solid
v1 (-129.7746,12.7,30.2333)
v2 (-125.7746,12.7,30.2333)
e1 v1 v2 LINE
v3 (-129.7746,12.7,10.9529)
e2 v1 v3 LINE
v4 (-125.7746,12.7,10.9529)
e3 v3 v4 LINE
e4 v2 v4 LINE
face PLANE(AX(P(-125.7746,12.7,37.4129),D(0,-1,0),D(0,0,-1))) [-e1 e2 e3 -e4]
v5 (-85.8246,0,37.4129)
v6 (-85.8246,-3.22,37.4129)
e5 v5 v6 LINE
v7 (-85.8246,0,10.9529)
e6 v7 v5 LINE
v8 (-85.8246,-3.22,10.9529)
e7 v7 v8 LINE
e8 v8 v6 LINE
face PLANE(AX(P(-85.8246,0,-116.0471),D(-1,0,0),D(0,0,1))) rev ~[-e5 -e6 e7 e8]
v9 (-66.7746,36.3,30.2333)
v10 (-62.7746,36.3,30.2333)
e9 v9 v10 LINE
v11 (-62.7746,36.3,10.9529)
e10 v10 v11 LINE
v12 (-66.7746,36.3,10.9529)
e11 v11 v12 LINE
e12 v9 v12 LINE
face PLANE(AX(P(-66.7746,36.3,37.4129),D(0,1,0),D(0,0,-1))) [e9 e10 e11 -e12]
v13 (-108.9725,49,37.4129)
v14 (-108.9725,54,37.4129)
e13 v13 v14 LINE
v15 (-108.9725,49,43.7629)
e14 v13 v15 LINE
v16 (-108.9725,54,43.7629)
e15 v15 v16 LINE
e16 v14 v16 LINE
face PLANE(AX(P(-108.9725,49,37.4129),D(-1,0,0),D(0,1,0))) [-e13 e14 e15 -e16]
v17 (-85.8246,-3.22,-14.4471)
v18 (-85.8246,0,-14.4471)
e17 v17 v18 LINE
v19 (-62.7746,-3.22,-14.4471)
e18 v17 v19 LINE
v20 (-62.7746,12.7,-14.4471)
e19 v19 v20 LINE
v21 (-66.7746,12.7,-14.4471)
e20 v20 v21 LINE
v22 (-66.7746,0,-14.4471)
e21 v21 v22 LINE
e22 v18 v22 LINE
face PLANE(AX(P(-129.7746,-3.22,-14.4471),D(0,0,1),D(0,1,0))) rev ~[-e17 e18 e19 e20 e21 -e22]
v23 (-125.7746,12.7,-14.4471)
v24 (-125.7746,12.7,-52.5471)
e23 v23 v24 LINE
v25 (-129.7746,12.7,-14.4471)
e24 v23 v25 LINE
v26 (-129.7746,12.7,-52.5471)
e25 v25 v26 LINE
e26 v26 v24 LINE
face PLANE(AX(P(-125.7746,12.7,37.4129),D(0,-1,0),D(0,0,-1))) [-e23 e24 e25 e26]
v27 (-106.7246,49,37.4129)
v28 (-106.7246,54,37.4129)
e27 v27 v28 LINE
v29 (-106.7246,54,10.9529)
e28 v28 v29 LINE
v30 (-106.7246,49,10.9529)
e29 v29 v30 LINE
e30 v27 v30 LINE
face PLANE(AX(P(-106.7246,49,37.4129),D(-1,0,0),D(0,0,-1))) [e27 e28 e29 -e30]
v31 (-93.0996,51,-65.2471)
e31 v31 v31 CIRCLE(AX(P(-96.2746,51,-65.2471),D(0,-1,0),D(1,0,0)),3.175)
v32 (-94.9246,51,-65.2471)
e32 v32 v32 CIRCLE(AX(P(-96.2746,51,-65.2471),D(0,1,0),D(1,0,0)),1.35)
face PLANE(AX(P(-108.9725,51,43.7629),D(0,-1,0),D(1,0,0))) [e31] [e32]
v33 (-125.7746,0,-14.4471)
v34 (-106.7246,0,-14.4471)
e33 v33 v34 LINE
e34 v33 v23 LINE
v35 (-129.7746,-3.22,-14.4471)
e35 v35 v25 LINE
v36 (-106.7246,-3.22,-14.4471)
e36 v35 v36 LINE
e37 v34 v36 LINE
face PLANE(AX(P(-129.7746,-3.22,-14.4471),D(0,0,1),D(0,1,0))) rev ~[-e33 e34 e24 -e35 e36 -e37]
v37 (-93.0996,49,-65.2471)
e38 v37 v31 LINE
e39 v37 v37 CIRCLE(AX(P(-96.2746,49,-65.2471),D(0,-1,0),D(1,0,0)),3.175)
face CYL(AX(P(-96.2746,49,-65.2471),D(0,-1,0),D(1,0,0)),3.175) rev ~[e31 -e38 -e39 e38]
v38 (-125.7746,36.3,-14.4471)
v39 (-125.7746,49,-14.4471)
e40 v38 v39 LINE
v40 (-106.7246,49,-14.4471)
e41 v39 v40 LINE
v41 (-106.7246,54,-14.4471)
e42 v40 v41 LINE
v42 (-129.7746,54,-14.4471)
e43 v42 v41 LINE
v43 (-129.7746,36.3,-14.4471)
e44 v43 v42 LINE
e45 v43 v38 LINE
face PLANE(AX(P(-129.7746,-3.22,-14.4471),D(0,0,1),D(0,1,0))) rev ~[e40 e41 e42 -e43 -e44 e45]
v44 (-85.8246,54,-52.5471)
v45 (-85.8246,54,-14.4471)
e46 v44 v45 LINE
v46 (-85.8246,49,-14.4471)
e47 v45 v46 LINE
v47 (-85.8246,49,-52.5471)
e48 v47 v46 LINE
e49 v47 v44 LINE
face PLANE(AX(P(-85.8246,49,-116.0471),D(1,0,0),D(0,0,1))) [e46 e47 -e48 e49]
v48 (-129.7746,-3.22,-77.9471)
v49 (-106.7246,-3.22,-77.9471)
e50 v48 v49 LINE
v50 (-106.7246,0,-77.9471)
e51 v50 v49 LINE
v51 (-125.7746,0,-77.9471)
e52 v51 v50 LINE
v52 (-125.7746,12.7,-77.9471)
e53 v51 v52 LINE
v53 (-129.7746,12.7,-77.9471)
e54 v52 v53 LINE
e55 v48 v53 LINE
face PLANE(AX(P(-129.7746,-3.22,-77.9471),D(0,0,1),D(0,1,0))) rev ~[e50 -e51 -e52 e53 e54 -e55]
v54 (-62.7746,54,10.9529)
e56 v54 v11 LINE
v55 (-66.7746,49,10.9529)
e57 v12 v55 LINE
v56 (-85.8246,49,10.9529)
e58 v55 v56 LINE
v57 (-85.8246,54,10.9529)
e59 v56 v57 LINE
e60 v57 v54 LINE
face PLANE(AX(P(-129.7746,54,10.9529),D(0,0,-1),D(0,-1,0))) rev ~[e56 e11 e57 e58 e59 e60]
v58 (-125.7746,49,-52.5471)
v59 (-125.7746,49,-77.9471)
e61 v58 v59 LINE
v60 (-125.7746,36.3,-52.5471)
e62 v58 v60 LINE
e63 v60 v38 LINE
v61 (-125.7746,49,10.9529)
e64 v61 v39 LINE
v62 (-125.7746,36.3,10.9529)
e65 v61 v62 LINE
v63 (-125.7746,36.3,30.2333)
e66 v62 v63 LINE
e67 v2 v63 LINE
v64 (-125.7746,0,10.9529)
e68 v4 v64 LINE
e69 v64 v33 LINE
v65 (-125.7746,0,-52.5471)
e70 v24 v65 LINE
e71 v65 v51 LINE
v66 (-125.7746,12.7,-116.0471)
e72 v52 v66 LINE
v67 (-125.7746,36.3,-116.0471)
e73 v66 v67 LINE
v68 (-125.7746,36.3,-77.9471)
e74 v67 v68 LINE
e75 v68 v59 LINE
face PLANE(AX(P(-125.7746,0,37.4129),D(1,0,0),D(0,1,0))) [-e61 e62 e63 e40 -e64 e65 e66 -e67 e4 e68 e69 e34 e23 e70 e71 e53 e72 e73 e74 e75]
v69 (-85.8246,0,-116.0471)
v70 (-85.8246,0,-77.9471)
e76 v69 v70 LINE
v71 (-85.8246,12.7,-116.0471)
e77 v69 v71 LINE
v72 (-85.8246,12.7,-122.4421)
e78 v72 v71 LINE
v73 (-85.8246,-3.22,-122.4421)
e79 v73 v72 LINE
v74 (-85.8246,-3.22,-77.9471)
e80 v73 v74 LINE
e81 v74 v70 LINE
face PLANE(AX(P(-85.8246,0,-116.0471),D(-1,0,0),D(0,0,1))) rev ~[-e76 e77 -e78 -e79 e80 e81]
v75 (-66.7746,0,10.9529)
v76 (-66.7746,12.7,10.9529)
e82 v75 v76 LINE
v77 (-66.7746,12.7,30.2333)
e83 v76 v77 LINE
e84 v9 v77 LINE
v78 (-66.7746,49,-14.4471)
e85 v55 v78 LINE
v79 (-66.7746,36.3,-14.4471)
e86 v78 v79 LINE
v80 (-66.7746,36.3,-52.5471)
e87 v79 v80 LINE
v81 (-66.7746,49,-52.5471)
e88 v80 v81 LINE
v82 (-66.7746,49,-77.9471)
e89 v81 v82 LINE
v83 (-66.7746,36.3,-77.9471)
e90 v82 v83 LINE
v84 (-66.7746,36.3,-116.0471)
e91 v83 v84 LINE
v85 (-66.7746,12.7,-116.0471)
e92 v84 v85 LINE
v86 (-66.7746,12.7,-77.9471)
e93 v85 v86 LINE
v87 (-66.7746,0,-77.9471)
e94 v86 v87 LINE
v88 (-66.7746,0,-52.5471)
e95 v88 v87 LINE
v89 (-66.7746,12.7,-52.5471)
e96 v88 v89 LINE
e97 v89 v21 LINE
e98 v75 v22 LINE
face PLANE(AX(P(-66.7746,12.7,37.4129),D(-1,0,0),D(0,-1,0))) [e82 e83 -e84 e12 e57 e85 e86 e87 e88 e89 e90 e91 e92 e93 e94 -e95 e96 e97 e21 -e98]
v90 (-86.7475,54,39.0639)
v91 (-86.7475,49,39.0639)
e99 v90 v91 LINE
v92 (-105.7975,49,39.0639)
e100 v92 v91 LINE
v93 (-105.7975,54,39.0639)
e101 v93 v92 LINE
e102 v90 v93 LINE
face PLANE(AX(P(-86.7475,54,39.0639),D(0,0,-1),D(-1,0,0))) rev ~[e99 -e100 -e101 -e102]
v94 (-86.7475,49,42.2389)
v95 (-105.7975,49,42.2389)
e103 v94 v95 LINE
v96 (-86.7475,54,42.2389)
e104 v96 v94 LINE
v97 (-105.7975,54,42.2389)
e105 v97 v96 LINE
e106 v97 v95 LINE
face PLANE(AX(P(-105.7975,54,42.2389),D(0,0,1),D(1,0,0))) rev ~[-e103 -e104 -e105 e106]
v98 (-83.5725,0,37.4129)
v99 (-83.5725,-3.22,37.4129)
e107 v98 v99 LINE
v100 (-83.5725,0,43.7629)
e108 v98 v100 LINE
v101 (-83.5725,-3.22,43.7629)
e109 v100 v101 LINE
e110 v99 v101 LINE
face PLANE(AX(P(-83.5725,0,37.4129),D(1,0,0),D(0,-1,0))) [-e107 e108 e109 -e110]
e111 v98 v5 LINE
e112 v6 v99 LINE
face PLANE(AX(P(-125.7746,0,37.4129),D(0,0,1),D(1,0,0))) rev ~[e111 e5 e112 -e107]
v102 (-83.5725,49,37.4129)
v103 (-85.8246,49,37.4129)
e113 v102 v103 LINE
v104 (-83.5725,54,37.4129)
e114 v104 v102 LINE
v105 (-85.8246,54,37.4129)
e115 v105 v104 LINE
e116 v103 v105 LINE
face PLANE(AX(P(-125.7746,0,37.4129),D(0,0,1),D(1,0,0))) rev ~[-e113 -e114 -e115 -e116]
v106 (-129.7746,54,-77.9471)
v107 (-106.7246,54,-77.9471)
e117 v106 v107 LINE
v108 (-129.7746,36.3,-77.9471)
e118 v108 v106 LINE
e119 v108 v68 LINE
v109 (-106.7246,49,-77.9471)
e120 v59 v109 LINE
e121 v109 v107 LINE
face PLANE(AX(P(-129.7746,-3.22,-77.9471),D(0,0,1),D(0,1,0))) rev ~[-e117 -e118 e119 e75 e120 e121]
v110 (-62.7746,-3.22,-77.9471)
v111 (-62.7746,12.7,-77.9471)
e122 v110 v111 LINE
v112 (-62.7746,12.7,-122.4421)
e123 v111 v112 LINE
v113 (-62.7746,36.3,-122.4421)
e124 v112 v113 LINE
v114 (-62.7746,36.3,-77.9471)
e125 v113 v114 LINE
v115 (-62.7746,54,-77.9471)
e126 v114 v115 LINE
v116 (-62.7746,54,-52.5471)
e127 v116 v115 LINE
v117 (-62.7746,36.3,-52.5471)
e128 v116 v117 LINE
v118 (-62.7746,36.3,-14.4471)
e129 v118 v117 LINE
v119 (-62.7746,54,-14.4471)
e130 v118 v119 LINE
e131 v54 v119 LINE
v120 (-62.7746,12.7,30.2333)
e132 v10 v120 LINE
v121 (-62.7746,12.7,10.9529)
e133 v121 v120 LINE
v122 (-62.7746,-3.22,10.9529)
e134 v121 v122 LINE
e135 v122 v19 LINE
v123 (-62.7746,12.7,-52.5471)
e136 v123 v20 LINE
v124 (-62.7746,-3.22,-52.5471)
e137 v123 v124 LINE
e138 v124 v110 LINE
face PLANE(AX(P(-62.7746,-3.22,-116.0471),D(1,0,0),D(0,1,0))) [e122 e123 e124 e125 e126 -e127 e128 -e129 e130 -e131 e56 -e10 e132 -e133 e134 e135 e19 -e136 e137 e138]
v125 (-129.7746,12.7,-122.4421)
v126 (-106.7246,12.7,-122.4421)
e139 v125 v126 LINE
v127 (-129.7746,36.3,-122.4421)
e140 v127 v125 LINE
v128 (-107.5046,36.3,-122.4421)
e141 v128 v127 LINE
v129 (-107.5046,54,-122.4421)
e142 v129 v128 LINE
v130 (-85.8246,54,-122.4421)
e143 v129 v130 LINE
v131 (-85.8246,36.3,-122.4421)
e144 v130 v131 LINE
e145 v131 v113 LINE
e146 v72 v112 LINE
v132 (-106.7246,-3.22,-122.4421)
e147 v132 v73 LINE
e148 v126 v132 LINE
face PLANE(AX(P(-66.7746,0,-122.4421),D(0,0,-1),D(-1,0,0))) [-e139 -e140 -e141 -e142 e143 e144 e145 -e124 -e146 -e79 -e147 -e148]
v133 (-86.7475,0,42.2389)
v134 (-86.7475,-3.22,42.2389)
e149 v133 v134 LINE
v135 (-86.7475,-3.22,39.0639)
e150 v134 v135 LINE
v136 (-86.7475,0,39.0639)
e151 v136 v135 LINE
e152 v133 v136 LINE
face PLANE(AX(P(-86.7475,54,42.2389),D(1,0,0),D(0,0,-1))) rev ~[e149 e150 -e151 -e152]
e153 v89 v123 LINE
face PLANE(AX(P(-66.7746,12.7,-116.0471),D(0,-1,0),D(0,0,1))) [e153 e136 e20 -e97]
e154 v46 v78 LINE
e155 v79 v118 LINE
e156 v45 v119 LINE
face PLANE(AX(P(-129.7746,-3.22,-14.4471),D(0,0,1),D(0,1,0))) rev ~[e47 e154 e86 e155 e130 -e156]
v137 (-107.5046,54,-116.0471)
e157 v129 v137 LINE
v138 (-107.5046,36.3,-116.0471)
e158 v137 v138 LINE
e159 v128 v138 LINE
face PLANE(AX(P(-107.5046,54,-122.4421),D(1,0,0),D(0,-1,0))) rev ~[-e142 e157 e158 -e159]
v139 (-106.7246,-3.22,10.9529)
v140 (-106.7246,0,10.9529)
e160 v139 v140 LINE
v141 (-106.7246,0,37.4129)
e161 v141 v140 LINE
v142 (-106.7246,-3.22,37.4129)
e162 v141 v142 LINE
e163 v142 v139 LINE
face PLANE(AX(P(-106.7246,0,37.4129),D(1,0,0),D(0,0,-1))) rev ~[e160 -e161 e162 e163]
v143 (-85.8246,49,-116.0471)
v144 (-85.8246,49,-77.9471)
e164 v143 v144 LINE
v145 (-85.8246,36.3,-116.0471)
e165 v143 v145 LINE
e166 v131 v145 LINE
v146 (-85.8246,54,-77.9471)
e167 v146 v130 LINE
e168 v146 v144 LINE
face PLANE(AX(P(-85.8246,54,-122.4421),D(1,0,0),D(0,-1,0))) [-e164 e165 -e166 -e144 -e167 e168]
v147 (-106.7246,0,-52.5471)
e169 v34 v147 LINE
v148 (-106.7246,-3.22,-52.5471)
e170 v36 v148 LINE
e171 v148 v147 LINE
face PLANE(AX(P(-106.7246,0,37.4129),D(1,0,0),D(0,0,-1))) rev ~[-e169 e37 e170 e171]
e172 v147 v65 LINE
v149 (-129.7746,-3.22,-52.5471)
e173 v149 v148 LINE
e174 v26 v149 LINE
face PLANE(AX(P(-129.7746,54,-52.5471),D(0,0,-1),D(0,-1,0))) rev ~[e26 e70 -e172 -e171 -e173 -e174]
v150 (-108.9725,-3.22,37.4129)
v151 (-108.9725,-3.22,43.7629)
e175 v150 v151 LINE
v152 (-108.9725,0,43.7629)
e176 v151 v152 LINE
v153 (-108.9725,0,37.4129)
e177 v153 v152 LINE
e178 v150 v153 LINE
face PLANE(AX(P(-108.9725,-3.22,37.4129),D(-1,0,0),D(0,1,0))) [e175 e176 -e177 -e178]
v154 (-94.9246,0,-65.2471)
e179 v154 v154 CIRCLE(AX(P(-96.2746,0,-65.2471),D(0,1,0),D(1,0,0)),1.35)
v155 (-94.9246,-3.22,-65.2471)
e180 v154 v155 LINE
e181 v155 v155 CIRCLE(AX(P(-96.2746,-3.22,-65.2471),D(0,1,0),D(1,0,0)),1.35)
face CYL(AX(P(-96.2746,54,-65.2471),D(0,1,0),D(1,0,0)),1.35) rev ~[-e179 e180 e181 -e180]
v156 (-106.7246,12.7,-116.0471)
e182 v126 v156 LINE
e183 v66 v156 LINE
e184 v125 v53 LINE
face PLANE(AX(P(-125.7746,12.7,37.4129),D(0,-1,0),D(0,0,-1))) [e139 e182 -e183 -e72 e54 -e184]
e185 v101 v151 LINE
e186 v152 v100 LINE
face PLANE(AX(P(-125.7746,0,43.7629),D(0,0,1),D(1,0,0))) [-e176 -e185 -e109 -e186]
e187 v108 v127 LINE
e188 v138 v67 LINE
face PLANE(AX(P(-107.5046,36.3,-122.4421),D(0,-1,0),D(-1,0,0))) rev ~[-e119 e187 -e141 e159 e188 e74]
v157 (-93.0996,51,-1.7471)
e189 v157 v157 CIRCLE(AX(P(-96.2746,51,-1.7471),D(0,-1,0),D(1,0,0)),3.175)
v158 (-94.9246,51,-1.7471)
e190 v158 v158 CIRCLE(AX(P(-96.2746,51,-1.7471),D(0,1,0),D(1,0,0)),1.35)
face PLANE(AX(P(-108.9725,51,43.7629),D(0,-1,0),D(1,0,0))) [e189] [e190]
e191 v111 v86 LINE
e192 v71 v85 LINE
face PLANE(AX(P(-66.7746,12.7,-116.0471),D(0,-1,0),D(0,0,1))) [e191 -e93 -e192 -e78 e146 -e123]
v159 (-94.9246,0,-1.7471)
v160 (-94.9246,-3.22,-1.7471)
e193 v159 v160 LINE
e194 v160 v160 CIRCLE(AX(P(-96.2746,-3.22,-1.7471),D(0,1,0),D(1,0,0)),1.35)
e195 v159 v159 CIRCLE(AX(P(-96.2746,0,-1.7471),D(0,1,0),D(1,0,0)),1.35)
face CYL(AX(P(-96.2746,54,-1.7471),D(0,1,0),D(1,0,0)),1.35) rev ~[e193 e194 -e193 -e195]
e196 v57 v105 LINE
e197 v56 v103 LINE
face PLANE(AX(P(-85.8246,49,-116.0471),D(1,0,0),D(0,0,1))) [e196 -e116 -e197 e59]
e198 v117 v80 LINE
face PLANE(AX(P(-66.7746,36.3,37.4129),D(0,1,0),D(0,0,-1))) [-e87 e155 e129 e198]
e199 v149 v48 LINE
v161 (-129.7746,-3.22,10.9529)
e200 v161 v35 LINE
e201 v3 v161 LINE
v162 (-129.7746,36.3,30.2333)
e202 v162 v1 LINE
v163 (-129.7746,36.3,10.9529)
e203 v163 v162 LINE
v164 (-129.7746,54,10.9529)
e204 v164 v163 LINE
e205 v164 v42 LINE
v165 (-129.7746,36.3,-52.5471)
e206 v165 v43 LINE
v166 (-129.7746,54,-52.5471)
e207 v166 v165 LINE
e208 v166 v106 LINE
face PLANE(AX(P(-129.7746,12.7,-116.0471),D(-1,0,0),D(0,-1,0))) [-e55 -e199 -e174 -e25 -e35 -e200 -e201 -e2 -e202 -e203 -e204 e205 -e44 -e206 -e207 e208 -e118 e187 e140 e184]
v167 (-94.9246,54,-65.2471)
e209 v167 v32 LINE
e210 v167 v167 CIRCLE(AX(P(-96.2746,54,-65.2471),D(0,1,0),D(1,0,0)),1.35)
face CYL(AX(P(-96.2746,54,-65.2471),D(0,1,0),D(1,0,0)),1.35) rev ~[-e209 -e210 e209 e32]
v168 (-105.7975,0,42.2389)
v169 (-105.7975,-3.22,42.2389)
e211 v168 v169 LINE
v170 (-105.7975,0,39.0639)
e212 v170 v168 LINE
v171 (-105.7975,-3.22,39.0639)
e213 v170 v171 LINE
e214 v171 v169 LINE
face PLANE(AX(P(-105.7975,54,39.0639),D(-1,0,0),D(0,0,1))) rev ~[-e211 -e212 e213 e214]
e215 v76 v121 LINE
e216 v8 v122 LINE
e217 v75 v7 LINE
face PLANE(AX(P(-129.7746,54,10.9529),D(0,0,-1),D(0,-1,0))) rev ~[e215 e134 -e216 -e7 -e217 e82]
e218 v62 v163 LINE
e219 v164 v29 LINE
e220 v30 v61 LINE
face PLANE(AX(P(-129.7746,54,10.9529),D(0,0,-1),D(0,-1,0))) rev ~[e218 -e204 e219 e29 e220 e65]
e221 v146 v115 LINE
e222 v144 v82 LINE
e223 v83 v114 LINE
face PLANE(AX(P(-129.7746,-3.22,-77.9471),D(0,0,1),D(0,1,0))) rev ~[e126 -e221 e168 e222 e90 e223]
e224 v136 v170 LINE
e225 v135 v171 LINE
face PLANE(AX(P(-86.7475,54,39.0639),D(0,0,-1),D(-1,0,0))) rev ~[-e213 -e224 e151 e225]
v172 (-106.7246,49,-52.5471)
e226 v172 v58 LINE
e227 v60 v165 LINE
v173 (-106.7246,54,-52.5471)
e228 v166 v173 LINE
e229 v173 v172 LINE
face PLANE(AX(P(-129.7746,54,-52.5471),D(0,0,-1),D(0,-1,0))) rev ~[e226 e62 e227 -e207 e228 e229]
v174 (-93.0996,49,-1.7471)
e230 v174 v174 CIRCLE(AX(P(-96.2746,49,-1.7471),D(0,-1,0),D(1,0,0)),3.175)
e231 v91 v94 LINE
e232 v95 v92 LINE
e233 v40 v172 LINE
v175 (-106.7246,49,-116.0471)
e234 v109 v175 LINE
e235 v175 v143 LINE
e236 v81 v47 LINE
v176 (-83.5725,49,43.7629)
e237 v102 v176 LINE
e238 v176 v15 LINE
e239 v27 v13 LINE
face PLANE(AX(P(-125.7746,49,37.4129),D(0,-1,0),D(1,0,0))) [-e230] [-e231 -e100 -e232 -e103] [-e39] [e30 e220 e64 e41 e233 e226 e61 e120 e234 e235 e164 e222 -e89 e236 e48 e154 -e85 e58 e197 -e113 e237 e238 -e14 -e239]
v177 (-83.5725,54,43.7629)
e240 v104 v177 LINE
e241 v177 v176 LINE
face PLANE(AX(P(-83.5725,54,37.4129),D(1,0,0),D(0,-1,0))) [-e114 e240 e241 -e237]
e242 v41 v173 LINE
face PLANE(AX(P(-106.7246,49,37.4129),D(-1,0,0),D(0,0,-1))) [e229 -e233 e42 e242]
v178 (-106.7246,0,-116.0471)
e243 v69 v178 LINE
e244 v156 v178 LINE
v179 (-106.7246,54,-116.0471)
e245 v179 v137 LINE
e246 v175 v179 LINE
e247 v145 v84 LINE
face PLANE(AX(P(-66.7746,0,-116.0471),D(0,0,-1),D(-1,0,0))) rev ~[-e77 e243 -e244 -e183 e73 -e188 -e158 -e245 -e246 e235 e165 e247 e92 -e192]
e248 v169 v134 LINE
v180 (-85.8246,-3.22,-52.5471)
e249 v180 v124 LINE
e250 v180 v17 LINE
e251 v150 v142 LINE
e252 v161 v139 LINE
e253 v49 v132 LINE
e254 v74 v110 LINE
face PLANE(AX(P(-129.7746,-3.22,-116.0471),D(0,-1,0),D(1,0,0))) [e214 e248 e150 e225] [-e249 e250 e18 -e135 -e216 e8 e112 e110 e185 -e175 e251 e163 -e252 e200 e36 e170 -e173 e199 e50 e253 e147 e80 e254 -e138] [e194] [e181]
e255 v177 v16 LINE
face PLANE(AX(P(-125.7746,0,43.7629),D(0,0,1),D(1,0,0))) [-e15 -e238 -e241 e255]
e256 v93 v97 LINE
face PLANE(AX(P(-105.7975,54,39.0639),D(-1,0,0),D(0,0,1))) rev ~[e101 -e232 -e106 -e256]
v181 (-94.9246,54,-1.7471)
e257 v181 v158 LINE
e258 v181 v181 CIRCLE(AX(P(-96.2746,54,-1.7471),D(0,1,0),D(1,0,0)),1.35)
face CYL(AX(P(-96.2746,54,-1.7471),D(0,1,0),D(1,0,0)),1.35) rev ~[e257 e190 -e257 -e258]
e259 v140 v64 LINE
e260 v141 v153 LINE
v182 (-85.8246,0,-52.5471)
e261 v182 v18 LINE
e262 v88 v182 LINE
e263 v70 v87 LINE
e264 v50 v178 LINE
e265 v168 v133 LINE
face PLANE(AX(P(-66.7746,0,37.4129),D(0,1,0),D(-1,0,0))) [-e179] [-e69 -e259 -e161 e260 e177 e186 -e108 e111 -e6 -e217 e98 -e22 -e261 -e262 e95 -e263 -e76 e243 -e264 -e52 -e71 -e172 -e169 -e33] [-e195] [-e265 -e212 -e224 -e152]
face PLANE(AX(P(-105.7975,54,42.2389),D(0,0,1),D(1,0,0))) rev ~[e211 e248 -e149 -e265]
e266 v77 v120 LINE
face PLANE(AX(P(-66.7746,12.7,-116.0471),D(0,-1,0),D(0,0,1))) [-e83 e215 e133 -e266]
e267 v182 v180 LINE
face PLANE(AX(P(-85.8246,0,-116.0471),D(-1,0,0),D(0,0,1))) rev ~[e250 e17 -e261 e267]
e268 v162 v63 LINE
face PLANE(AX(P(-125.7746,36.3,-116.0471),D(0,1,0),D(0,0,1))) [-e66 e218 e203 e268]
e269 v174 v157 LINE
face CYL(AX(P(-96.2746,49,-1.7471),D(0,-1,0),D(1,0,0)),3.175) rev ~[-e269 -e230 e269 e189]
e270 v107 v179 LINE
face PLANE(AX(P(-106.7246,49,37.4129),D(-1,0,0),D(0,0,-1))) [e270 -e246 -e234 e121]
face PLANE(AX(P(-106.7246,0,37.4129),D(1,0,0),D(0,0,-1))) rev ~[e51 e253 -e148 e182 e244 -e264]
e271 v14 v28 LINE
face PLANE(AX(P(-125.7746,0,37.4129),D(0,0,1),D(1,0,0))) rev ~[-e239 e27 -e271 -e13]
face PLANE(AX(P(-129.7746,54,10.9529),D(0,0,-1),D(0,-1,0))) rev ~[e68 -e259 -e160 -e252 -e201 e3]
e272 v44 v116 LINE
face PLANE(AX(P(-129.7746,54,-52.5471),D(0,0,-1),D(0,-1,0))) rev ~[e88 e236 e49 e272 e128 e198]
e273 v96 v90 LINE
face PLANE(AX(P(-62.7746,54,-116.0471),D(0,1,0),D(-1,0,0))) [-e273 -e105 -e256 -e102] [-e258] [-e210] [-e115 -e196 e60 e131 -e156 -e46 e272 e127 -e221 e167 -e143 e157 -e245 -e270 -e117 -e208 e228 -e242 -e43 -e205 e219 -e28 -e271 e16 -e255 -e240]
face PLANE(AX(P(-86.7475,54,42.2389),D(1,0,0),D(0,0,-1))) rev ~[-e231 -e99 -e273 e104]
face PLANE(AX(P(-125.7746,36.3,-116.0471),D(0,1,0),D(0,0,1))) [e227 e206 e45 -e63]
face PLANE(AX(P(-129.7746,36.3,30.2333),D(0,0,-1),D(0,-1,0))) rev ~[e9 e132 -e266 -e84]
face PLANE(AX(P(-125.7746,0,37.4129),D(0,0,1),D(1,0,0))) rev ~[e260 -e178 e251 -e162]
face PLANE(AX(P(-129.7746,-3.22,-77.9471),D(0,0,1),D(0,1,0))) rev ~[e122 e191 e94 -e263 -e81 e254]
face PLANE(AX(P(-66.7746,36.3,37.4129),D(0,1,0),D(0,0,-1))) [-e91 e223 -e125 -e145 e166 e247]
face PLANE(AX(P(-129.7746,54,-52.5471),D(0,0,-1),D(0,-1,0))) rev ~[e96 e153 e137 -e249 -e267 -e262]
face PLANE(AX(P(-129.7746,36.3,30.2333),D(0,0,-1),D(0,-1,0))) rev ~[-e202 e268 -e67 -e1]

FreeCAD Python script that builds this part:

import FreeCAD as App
import Part
import Sketcher
from FreeCAD import Vector
Q = App.Units.Quantity

doc = App.newDocument("Part")
body = doc.addObject("PartDesign::Body", "Body")

# Sketch on XZ plane
sketch1 = body.newObject("Sketcher::SketchObject", "Sketch")
sketch1.AttachmentSupport = (doc.getObject("XZ_Plane"), [""])
sketch1.MapMode = "FlatFace"
sketch1.addGeometry(Part.LineSegment(Vector(-66.7746, -116.0471, 0), Vector(-125.7746, -116.0471, 0)), False)
sketch1.addGeometry(Part.LineSegment(Vector(-125.7746, -116.0471, 0), Vector(-125.7746, 37.4129, 0)), False)
sketch1.addGeometry(Part.LineSegment(Vector(-125.7746, 37.4129, 0), Vector(-66.7746, 37.4129, 0)), False)
sketch1.addGeometry(Part.LineSegment(Vector(-66.7746, 37.4129, 0), Vector(-66.7746, -116.0471, 0)), False)
sketch1.addConstraint(Sketcher.Constraint("Coincident", 0, 2, 1, 1))
sketch1.addConstraint(Sketcher.Constraint("Coincident", 1, 2, 2, 1))
sketch1.addConstraint(Sketcher.Constraint("Coincident", 2, 2, 3, 1))
sketch1.addConstraint(Sketcher.Constraint("Coincident", 3, 2, 0, 1))
sketch1.addConstraint(Sketcher.Constraint("Horizontal", 0))
sketch1.addConstraint(Sketcher.Constraint("Vertical", 1))
sketch1.addConstraint(Sketcher.Constraint("Horizontal", 2))
sketch1.addConstraint(Sketcher.Constraint("Vertical", 3))
sketch1.addConstraint(Sketcher.Constraint("DistanceX", 0, 2, 0, 1, Q("59 mm")))
sketch1.addConstraint(Sketcher.Constraint("DistanceY", 1, 1, 1, 2, Q("153.46 mm")))
sketch1.addConstraint(Sketcher.Constraint("DistanceY", 0, 2, -1, 1, Q("116.047 mm")))
sketch1.addConstraint(Sketcher.Constraint("DistanceX", 0, 2, -1, 1, Q("125.7746 mm")))
pad1 = body.newObject("PartDesign::Pad", "Pad")
pad1.Profile = sketch1
pad1.Length = 49
pad1.Reversed = True

# Sketch on XZ plane
sketch2 = body.newObject("Sketcher::SketchObject", "Sketch001")
sketch2.AttachmentSupport = (doc.getObject("XZ_Plane"), [""])
sketch2.MapMode = "FlatFace"
sketch2.addGeometry(Part.LineSegment(Vector(-85.8246, 37.4129, 0), Vector(-106.7246, 37.4129, 0)), False)
sketch2.addGeometry(Part.LineSegment(Vector(-106.7246, 37.4129, 0), Vector(-106.7246, -116.0471, 0)), False)
sketch2.addGeometry(Part.LineSegment(Vector(-106.7246, -116.0471, 0), Vector(-85.8246, -116.0471, 0)), False)
sketch2.addGeometry(Part.LineSegment(Vector(-85.8246, -116.0471, 0), Vector(-85.8246, 37.4129, 0)), False)
sketch2.addConstraint(Sketcher.Constraint("Coincident", 0, 2, 1, 1))
sketch2.addConstraint(Sketcher.Constraint("Coincident", 1, 2, 2, 1))
sketch2.addConstraint(Sketcher.Constraint("Coincident", 2, 2, 3, 1))
sketch2.addConstraint(Sketcher.Constraint("Coincident", 3, 2, 0, 1))
sketch2.addConstraint(Sketcher.Constraint("Horizontal", 0))
sketch2.addConstraint(Sketcher.Constraint("Vertical", 1))
sketch2.addConstraint(Sketcher.Constraint("Horizontal", 2))
sketch2.addConstraint(Sketcher.Constraint("Vertical", 3))
sketch2.addConstraint(Sketcher.Constraint("DistanceX", 0, 2, 0, 1, Q("20.9 mm")))
sketch2.addConstraint(Sketcher.Constraint("DistanceY", 1, 2, 1, 1, Q("153.46 mm")))
sketch2.addConstraint(Sketcher.Constraint("DistanceY", -1, 1, 0, 2, Q("37.413 mm")))
sketch2.addConstraint(Sketcher.Constraint("DistanceX", 0, 2, -1, 1, Q("106.7246 mm")))
pad2 = body.newObject("PartDesign::Pad", "Pad001")
pad2.Profile = sketch2
pad2.Length = 3.22

# Sketch on XZ plane
sketch3 = body.newObject("Sketcher::SketchObject", "Sketch002")
sketch3.AttachmentSupport = (doc.getObject("XZ_Plane"), [""])
sketch3.MapMode = "FlatFace"
sketch3.AttachmentOffset = App.Placement(Vector(0, 0, -49), App.Rotation())
sketch3.addGeometry(Part.LineSegment(Vector(-106.7246, -116.0471, 0), Vector(-106.7246, 37.4129, 0)), False)
sketch3.addGeometry(Part.LineSegment(Vector(-106.7246, 37.4129, 0), Vector(-85.8246, 37.4129, 0)), False)
sketch3.addGeometry(Part.LineSegment(Vector(-85.8246, 37.4129, 0), Vector(-85.8246, -116.0471, 0)), False)
sketch3.addGeometry(Part.LineSegment(Vector(-85.8246, -116.0471, 0), Vector(-106.7246, -116.0471, 0)), False)
sketch3.addConstraint(Sketcher.Constraint("Coincident", 0, 2, 1, 1))
sketch3.addConstraint(Sketcher.Constraint("Coincident", 1, 2, 2, 1))
sketch3.addConstraint(Sketcher.Constraint("Coincident", 2, 2, 3, 1))
sketch3.addConstraint(Sketcher.Constraint("Coincident", 3, 2, 0, 1))
sketch3.addConstraint(Sketcher.Constraint("Vertical", 0))
sketch3.addConstraint(Sketcher.Constraint("Horizontal", 1))
sketch3.addConstraint(Sketcher.Constraint("Vertical", 2))
sketch3.addConstraint(Sketcher.Constraint("Horizontal", 3))
sketch3.addConstraint(Sketcher.Constraint("DistanceX", 1, 1, 1, 2, Q("20.9 mm")))
sketch3.addConstraint(Sketcher.Constraint("DistanceY", 0, 1, 0, 2, Q("153.46 mm")))
sketch3.addConstraint(Sketcher.Constraint("DistanceY", -1, 1, 0, 2, Q("37.413 mm")))
sketch3.addConstraint(Sketcher.Constraint("DistanceX", 0, 2, -1, 1, Q("106.7246 mm")))
pad3 = body.newObject("PartDesign::Pad", "Pad002")
pad3.Profile = sketch3
pad3.Length = 5
pad3.Reversed = True

# Sketch on YZ plane
sketch4 = body.newObject("Sketcher::SketchObject", "Sketch003")
sketch4.AttachmentSupport = (doc.getObject("YZ_Plane"), [""])
sketch4.MapMode = "FlatFace"
sketch4.AttachmentOffset = App.Placement(Vector(0, 0, -66.7746), App.Rotation())
sketch4.addGeometry(Part.LineSegment(Vector(36.3, 37.4129, 0), Vector(12.7, 37.4129, 0)), False)
sketch4.addGeometry(Part.LineSegment(Vector(12.7, 37.4129, 0), Vector(12.7, -116.0471, 0)), False)
sketch4.addGeometry(Part.LineSegment(Vector(12.7, -116.0471, 0), Vector(36.3, -116.0471, 0)), False)
sketch4.addGeometry(Part.LineSegment(Vector(36.3, -116.0471, 0), Vector(36.3, 37.4129, 0)), False)
sketch4.addConstraint(Sketcher.Constraint("Coincident", 0, 2, 1, 1))
sketch4.addConstraint(Sketcher.Constraint("Coincident", 1, 2, 2, 1))
sketch4.addConstraint(Sketcher.Constraint("Coincident", 2, 2, 3, 1))
sketch4.addConstraint(Sketcher.Constraint("Coincident", 3, 2, 0, 1))
sketch4.addConstraint(Sketcher.Constraint("Horizontal", 0))
sketch4.addConstraint(Sketcher.Constraint("Vertical", 1))
sketch4.addConstraint(Sketcher.Constraint("Horizontal", 2))
sketch4.addConstraint(Sketcher.Constraint("Vertical", 3))
sketch4.addConstraint(Sketcher.Constraint("DistanceX", -1, 1, 0, 2, Q("12.7 mm")))
sketch4.addConstraint(Sketcher.Constraint("DistanceX", 0, 2, 0, 1, Q("23.6 mm")))
sketch4.addConstraint(Sketcher.Constraint("DistanceY", 1, 2, 1, 1, Q("153.46 mm")))
sketch4.addConstraint(Sketcher.Constraint("DistanceY", -1, 1, 0, 2, Q("37.413 mm")))
pad4 = body.newObject("PartDesign::Pad", "Pad003")
pad4.Profile = sketch4
pad4.Length = 4

# Sketch on YZ plane
sketch5 = body.newObject("Sketcher::SketchObject", "Sketch004")
sketch5.AttachmentSupport = (doc.getObject("YZ_Plane"), [""])
sketch5.MapMode = "FlatFace"
sketch5.AttachmentOffset = App.Placement(Vector(0, 0, -125.7746), App.Rotation())
sketch5.addGeometry(Part.LineSegment(Vector(12.7, -116.0471, 0), Vector(12.7, 37.4129, 0)), False)
sketch5.addGeometry(Part.LineSegment(Vector(12.7, 37.4129, 0), Vector(36.3, 37.4129, 0)), False)
sketch5.addGeometry(Part.LineSegment(Vector(36.3, 37.4129, 0), Vector(36.3, -116.0471, 0)), False)
sketch5.addGeometry(Part.LineSegment(Vector(36.3, -116.0471, 0), Vector(12.7, -116.0471, 0)), False)
sketch5.addConstraint(Sketcher.Constraint("Coincident", 0, 2, 1, 1))
sketch5.addConstraint(Sketcher.Constraint("Coincident", 1, 2, 2, 1))
sketch5.addConstraint(Sketcher.Constraint("Coincident", 2, 2, 3, 1))
sketch5.addConstraint(Sketcher.Constraint("Coincident", 3, 2, 0, 1))
sketch5.addConstraint(Sketcher.Constraint("Vertical", 0))
sketch5.addConstraint(Sketcher.Constraint("Horizontal", 1))
sketch5.addConstraint(Sketcher.Constraint("Vertical", 2))
sketch5.addConstraint(Sketcher.Constraint("Horizontal", 3))
sketch5.addConstraint(Sketcher.Constraint("DistanceX", -1, 1, 0, 2, Q("12.7 mm")))
sketch5.addConstraint(Sketcher.Constraint("DistanceX", 1, 1, 1, 2, Q("23.6 mm")))
sketch5.addConstraint(Sketcher.Constraint("DistanceY", 0, 1, 0, 2, Q("153.46 mm")))
sketch5.addConstraint(Sketcher.Constraint("DistanceY", -1, 1, 0, 2, Q("37.413 mm")))
pad5 = body.newObject("PartDesign::Pad", "Pad004")
pad5.Profile = sketch5
pad5.Length = 4
pad5.Reversed = True

# Sketch on XY plane
sketch6 = body.newObject("Sketcher::SketchObject", "Sketch005")
sketch6.AttachmentSupport = (doc.getObject("XY_Plane"), [""])
sketch6.MapMode = "FlatFace"
sketch6.AttachmentOffset = App.Placement(Vector(0, 0, -116.0471), App.Rotation())
sketch6.addGeometry(Part.LineSegment(Vector(-62.7746, -3.22, 0), Vector(-129.7746, -3.22, 0)), False)
sketch6.addGeometry(Part.LineSegment(Vector(-129.7746, -3.22, 0), Vector(-129.7746, 54, 0)), False)
sketch6.addGeometry(Part.LineSegment(Vector(-129.7746, 54, 0), Vector(-62.7746, 54, 0)), False)
sketch6.addGeometry(Part.LineSegment(Vector(-62.7746, 54, 0), Vector(-62.7746, -3.22, 0)), False)
sketch6.addConstraint(Sketcher.Constraint("Coincident", 0, 2, 1, 1))
sketch6.addConstraint(Sketcher.Constraint("Coincident", 1, 2, 2, 1))
sketch6.addConstraint(Sketcher.Constraint("Coincident", 2, 2, 3, 1))
sketch6.addConstraint(Sketcher.Constraint("Coincident", 3, 2, 0, 1))
sketch6.addConstraint(Sketcher.Constraint("Horizontal", 0))
sketch6.addConstraint(Sketcher.Constraint("Vertical", 1))
sketch6.addConstraint(Sketcher.Constraint("Horizontal", 2))
sketch6.addConstraint(Sketcher.Constraint("Vertical", 3))
sketch6.addConstraint(Sketcher.Constraint("DistanceX", 0, 2, 0, 1, Q("67 mm")))
sketch6.addConstraint(Sketcher.Constraint("DistanceY", -1, 1, 1, 2, Q("54 mm")))
sketch6.addConstraint(Sketcher.Constraint("DistanceY", 1, 1, 1, 2, Q("57.22 mm")))
sketch6.addConstraint(Sketcher.Constraint("DistanceX", 0, 2, -1, 1, Q("129.7746 mm")))
pad6 = body.newObject("PartDesign::Pad", "Pad005")
pad6.Profile = sketch6
pad6.Length = 6.395
pad6.Reversed = True

# Sketch on YZ plane
sketch7 = body.newObject("Sketcher::SketchObject", "Sketch006")
sketch7.AttachmentSupport = (doc.getObject("YZ_Plane"), [""])
sketch7.MapMode = "FlatFace"
sketch7.AttachmentOffset = App.Placement(Vector(0, 0, -129.7746), App.Rotation())
sketch7.addGeometry(Part.LineSegment(Vector(-3.22, 10.9529, 0), Vector(54, 10.9529, 0)), False)
sketch7.addGeometry(Part.LineSegment(Vector(54, 10.9529, 0), Vector(54, -14.4471, 0)), False)
sketch7.addGeometry(Part.LineSegment(Vector(54, -14.4471, 0), Vector(-3.22, -14.4471, 0)), False)
sketch7.addGeometry(Part.LineSegment(Vector(-3.22, -14.4471, 0), Vector(-3.22, 10.9529, 0)), False)
sketch7.addGeometry(Part.LineSegment(Vector(-3.22, -52.5471, 0), Vector(54, -52.5471, 0)), False)
sketch7.addGeometry(Part.LineSegment(Vector(54, -52.5471, 0), Vector(54, -77.9471, 0)), False)
sketch7.addGeometry(Part.LineSegment(Vector(54, -77.9471, 0), Vector(-3.22, -77.9471, 0)), False)
sketch7.addGeometry(Part.LineSegment(Vector(-3.22, -77.9471, 0), Vector(-3.22, -52.5471, 0)), False)
sketch7.addConstraint(Sketcher.Constraint("Coincident", 0, 2, 1, 1))
sketch7.addConstraint(Sketcher.Constraint("Coincident", 1, 2, 2, 1))
sketch7.addConstraint(Sketcher.Constraint("Coincident", 2, 2, 3, 1))
sketch7.addConstraint(Sketcher.Constraint("Coincident", 3, 2, 0, 1))
sketch7.addConstraint(Sketcher.Constraint("Coincident", 4, 2, 5, 1))
sketch7.addConstraint(Sketcher.Constraint("Coincident", 5, 2, 6, 1))
sketch7.addConstraint(Sketcher.Constraint("Coincident", 6, 2, 7, 1))
sketch7.addConstraint(Sketcher.Constraint("Coincident", 7, 2, 4, 1))
sketch7.addConstraint(Sketcher.Constraint("Horizontal", 0))
sketch7.addConstraint(Sketcher.Constraint("Vertical", 1))
sketch7.addConstraint(Sketcher.Constraint("Horizontal", 2))
sketch7.addConstraint(Sketcher.Constraint("Vertical", 3))
sketch7.addConstraint(Sketcher.Constraint("Horizontal", 4))
sketch7.addConstraint(Sketcher.Constraint("Vertical", 5))
sketch7.addConstraint(Sketcher.Constraint("Horizontal", 6))
sketch7.addConstraint(Sketcher.Constraint("Vertical", 7))
sketch7.addConstraint(Sketcher.Constraint("Vertical", 1, 2, 4, 2))
sketch7.addConstraint(Sketcher.Constraint("Vertical", 3, 2, 6, 2))
sketch7.addConstraint(Sketcher.Constraint("Equal", 3, 5))
sketch7.addConstraint(Sketcher.Constraint("DistanceY", 1, 2, 1, 1, Q("25.4 mm")))
sketch7.addConstraint(Sketcher.Constraint("DistanceY", 4, 2, 1, 2, Q("38.1 mm")))
sketch7.addConstraint(Sketcher.Constraint("DistanceX", -1, 1, 0, 2, Q("54 mm")))
sketch7.addConstraint(Sketcher.Constraint("DistanceX", 0, 1, 0, 2, Q("57.22 mm")))
sketch7.addConstraint(Sketcher.Constraint("DistanceY", -1, 1, 0, 2, Q("10.953 mm")))
pad7 = body.newObject("PartDesign::Pad", "Pad006")
pad7.Profile = sketch7
pad7.Length = 67

# Sketch on XY plane
sketch8 = body.newObject("Sketcher::SketchObject", "Sketch007")
sketch8.AttachmentSupport = (doc.getObject("XY_Plane"), [""])
sketch8.MapMode = "FlatFace"
sketch8.AttachmentOffset = App.Placement(Vector(0, 0, 37.4129), App.Rotation())
sketch8.addGeometry(Part.LineSegment(Vector(-83.5725, 49, 0), Vector(-83.5725, 54, 0)), False)
sketch8.addGeometry(Part.LineSegment(Vector(-83.5725, 54, 0), Vector(-108.9725, 54, 0)), False)
sketch8.addGeometry(Part.LineSegment(Vector(-108.9725, 54, 0), Vector(-108.9725, 49, 0)), False)
sketch8.addGeometry(Part.LineSegment(Vector(-108.9725, 49, 0), Vector(-83.5725, 49, 0)), False)
sketch8.addGeometry(Part.LineSegment(Vector(-83.5725, 0, 0), Vector(-108.9725, 0, 0)), False)
sketch8.addGeometry(Part.LineSegment(Vector(-108.9725, 0, 0), Vector(-108.9725, -3.22, 0)), False)
sketch8.addGeometry(Part.LineSegment(Vector(-108.9725, -3.22, 0), Vector(-83.5725, -3.22, 0)), False)
sketch8.addGeometry(Part.LineSegment(Vector(-83.5725, -3.22, 0), Vector(-83.5725, 0, 0)), False)
sketch8.addConstraint(Sketcher.Constraint("Coincident", 0, 2, 1, 1))
sketch8.addConstraint(Sketcher.Constraint("Coincident", 1, 2, 2, 1))
sketch8.addConstraint(Sketcher.Constraint("Coincident", 2, 2, 3, 1))
sketch8.addConstraint(Sketcher.Constraint("Coincident", 3, 2, 0, 1))
sketch8.addConstraint(Sketcher.Constraint("Coincident", 4, 2, 5, 1))
sketch8.addConstraint(Sketcher.Constraint("Coincident", 5, 2, 6, 1))
sketch8.addConstraint(Sketcher.Constraint("Coincident", 6, 2, 7, 1))
sketch8.addConstraint(Sketcher.Constraint("Coincident", 7, 2, 4, 1))
sketch8.addConstraint(Sketcher.Constraint("Vertical", 0))
sketch8.addConstraint(Sketcher.Constraint("Horizontal", 1))
sketch8.addConstraint(Sketcher.Constraint("Vertical", 2))
sketch8.addConstraint(Sketcher.Constraint("Horizontal", 3))
sketch8.addConstraint(Sketcher.Constraint("Horizontal", 4))
sketch8.addConstraint(Sketcher.Constraint("Vertical", 5))
sketch8.addConstraint(Sketcher.Constraint("Horizontal", 6))
sketch8.addConstraint(Sketcher.Constraint("Vertical", 7))
sketch8.addConstraint(Sketcher.Constraint("PointOnObject", 4, 2, -1))
sketch8.addConstraint(Sketcher.Constraint("Vertical", 2, 2, 4, 2))
sketch8.addConstraint(Sketcher.Constraint("Vertical", 3, 2, 6, 2))
sketch8.addConstraint(Sketcher.Constraint("DistanceX", 1, 2, 1, 1, Q("25.4 mm")))
sketch8.addConstraint(Sketcher.Constraint("DistanceY", 0, 1, 0, 2, Q("5 mm")))
sketch8.addConstraint(Sketcher.Constraint("DistanceY", -1, 1, 0, 2, Q("54 mm")))
sketch8.addConstraint(Sketcher.Constraint("DistanceY", 5, 2, 5, 1, Q("3.22 mm")))
sketch8.addConstraint(Sketcher.Constraint("DistanceX", 0, 2, -1, 1, Q("83.5725 mm")))
pad8 = body.newObject("PartDesign::Pad", "Pad007")
pad8.Profile = sketch8
pad8.Length = 6.35

# Sketch on XZ plane
sketch9 = body.newObject("Sketcher::SketchObject", "Sketch008")
sketch9.AttachmentSupport = (doc.getObject("XZ_Plane"), [""])
sketch9.MapMode = "FlatFace"
sketch9.AttachmentOffset = App.Placement(Vector(0, 0, -54), App.Rotation())
sketch9.addGeometry(Part.LineSegment(Vector(-86.7475, 42.2389, 0), Vector(-86.7475, 39.0639, 0)), False)
sketch9.addGeometry(Part.LineSegment(Vector(-86.7475, 39.0639, 0), Vector(-105.7975, 39.0639, 0)), False)
sketch9.addGeometry(Part.LineSegment(Vector(-105.7975, 39.0639, 0), Vector(-105.7975, 42.2389, 0)), False)
sketch9.addGeometry(Part.LineSegment(Vector(-105.7975, 42.2389, 0), Vector(-86.7475, 42.2389, 0)), False)
sketch9.addConstraint(Sketcher.Constraint("Coincident", 0, 2, 1, 1))
sketch9.addConstraint(Sketcher.Constraint("Coincident", 1, 2, 2, 1))
sketch9.addConstraint(Sketcher.Constraint("Coincident", 2, 2, 3, 1))
sketch9.addConstraint(Sketcher.Constraint("Coincident", 3, 2, 0, 1))
sketch9.addConstraint(Sketcher.Constraint("Vertical", 0))
sketch9.addConstraint(Sketcher.Constraint("Horizontal", 1))
sketch9.addConstraint(Sketcher.Constraint("Vertical", 2))
sketch9.addConstraint(Sketcher.Constraint("Horizontal", 3))
sketch9.addConstraint(Sketcher.Constraint("DistanceX", 1, 2, 1, 1, Q("19.05 mm")))
sketch9.addConstraint(Sketcher.Constraint("DistanceY", 0, 2, 0, 1, Q("3.175 mm")))
sketch9.addConstraint(Sketcher.Constraint("DistanceY", -1, 1, 0, 2, Q("39.064 mm")))
sketch9.addConstraint(Sketcher.Constraint("DistanceX", 0, 2, -1, 1, Q("86.7475 mm")))
pocket1 = body.newObject("PartDesign::Pocket", "Pocket")
pocket1.Profile = sketch9
pocket1.Length = 57.22
pocket1.Reversed = True

# Sketch on XY plane
sketch10 = body.newObject("Sketcher::SketchObject", "Sketch009")
sketch10.AttachmentSupport = (doc.getObject("XY_Plane"), [""])
sketch10.MapMode = "FlatFace"
sketch10.AttachmentOffset = App.Placement(Vector(0, 0, 37.4129), App.Rotation())
sketch10.addGeometry(Part.LineSegment(Vector(-125.7746, 49, 0), Vector(-125.7746, 0, 0)), False)
sketch10.addGeometry(Part.LineSegment(Vector(-125.7746, 0, 0), Vector(-66.7746, 0, 0)), False)
sketch10.addGeometry(Part.LineSegment(Vector(-66.7746, 0, 0), Vector(-66.7746, 49, 0)), False)
sketch10.addGeometry(Part.LineSegment(Vector(-66.7746, 49, 0), Vector(-125.7746, 49, 0)), False)
sketch10.addConstraint(Sketcher.Constraint("Coincident", 0, 2, 1, 1))
sketch10.addConstraint(Sketcher.Constraint("Coincident", 1, 2, 2, 1))
sketch10.addConstraint(Sketcher.Constraint("Coincident", 2, 2, 3, 1))
sketch10.addConstraint(Sketcher.Constraint("Coincident", 3, 2, 0, 1))
sketch10.addConstraint(Sketcher.Constraint("Vertical", 0))
sketch10.addConstraint(Sketcher.Constraint("Horizontal", 1))
sketch10.addConstraint(Sketcher.Constraint("Vertical", 2))
sketch10.addConstraint(Sketcher.Constraint("Horizontal", 3))
sketch10.addConstraint(Sketcher.Constraint("PointOnObject", 0, 2, -1))
sketch10.addConstraint(Sketcher.Constraint("DistanceX", 1, 1, 1, 2, Q("59 mm")))
sketch10.addConstraint(Sketcher.Constraint("DistanceY", 0, 2, 0, 1, Q("49 mm")))
sketch10.addConstraint(Sketcher.Constraint("DistanceX", 0, 2, -1, 1, Q("125.7746 mm")))
pocket2 = body.newObject("PartDesign::Pocket", "Pocket001")
pocket2.Profile = sketch10
pocket2.Length = 153.46

# Sketch on XZ plane
sketch11 = body.newObject("Sketcher::SketchObject", "Sketch010")
sketch11.AttachmentSupport = (doc.getObject("XZ_Plane"), [""])
sketch11.MapMode = "FlatFace"
sketch11.AttachmentOffset = App.Placement(Vector(0, 0, -54), App.Rotation())
sketch11.addGeometry(Part.Circle(Vector(-96.2746, -65.2471, 0), Vector(0, 0, 1), 1.35), False)
sketch11.addGeometry(Part.Circle(Vector(-96.2746, -1.7471, 0), Vector(0, 0, 1), 1.35), False)
sketch11.addConstraint(Sketcher.Constraint("Equal", 0, 1))
sketch11.addConstraint(Sketcher.Constraint("Vertical", 0, 3, 1, 3))
sketch11.addConstraint(Sketcher.Constraint("Diameter", 0, Q("2.7 mm")))
sketch11.addConstraint(Sketcher.Constraint("DistanceY", 0, 3, 1, 3, Q("63.5 mm")))
sketch11.addConstraint(Sketcher.Constraint("DistanceY", 0, 3, -1, 1, Q("65.247 mm")))
sketch11.addConstraint(Sketcher.Constraint("DistanceX", 0, 3, -1, 1, Q("96.2746 mm")))
pocket3 = body.newObject("PartDesign::Pocket", "Pocket002")
pocket3.Profile = sketch11
pocket3.Length = 57.22
pocket3.Reversed = True

# Sketch on XZ plane
sketch12 = body.newObject("Sketcher::SketchObject", "Sketch011")
sketch12.AttachmentSupport = (doc.getObject("XZ_Plane"), [""])
sketch12.MapMode = "FlatFace"
sketch12.AttachmentOffset = App.Placement(Vector(0, 0, -49), App.Rotation())
sketch12.addGeometry(Part.Circle(Vector(-96.2746, -1.7471, 0), Vector(0, 0, 1), 3.175), False)
sketch12.addGeometry(Part.Circle(Vector(-96.2746, -65.2471, 0), Vector(0, 0, 1), 3.175), False)
sketch12.addConstraint(Sketcher.Constraint("Equal", 0, 1))
sketch12.addConstraint(Sketcher.Constraint("Vertical", 0, 3, 1, 3))
sketch12.addConstraint(Sketcher.Constraint("Diameter", 0, Q("6.35 mm")))
sketch12.addConstraint(Sketcher.Constraint("DistanceY", 1, 3, 0, 3, Q("63.5 mm")))
sketch12.addConstraint(Sketcher.Constraint("DistanceY", 0, 3, -1, 1, Q("1.747 mm")))
sketch12.addConstraint(Sketcher.Constraint("DistanceX", 0, 3, -1, 1, Q("96.2746 mm")))
pocket4 = body.newObject("PartDesign::Pocket", "Pocket003")
pocket4.Profile = sketch12
pocket4.Length = 2

# Sketch on YZ plane
sketch13 = body.newObject("Sketcher::SketchObject", "Sketch012")
sketch13.AttachmentSupport = (doc.getObject("YZ_Plane"), [""])
sketch13.MapMode = "FlatFace"
sketch13.AttachmentOffset = App.Placement(Vector(0, 0, -129.7746), App.Rotation())
sketch13.addGeometry(Part.LineSegment(Vector(12.7, 37.4129, 0), Vector(36.3, 37.4129, 0)), False)
sketch13.addGeometry(Part.LineSegment(Vector(36.3, 37.4129, 0), Vector(36.3, 30.2333, 0)), False)
sketch13.addGeometry(Part.LineSegment(Vector(36.3, 30.2333, 0), Vector(12.7, 30.2333, 0)), False)
sketch13.addGeometry(Part.LineSegment(Vector(12.7, 30.2333, 0), Vector(12.7, 37.4129, 0)), False)
sketch13.addConstraint(Sketcher.Constraint("Coincident", 0, 2, 1, 1))
sketch13.addConstraint(Sketcher.Constraint("Coincident", 1, 2, 2, 1))
sketch13.addConstraint(Sketcher.Constraint("Coincident", 2, 2, 3, 1))
sketch13.addConstraint(Sketcher.Constraint("Coincident", 3, 2, 0, 1))
sketch13.addConstraint(Sketcher.Constraint("Horizontal", 0))
sketch13.addConstraint(Sketcher.Constraint("Vertical", 1))
sketch13.addConstraint(Sketcher.Constraint("Horizontal", 2))
sketch13.addConstraint(Sketcher.Constraint("Vertical", 3))
sketch13.addConstraint(Sketcher.Constraint("DistanceX", 0, 1, 0, 2, Q("23.6 mm")))
sketch13.addConstraint(Sketcher.Constraint("DistanceX", -1, 1, 0, 2, Q("36.3 mm")))
sketch13.addConstraint(Sketcher.Constraint("DistanceY", 1, 2, 1, 1, Q("7.1796 mm")))
sketch13.addConstraint(Sketcher.Constraint("DistanceY", -1, 1, 0, 2, Q("37.413 mm")))
pocket5 = body.newObject("PartDesign::Pocket", "Pocket004")
pocket5.Profile = sketch13
pocket5.Length = 67
pocket5.Reversed = True

# Sketch on XY plane
sketch14 = body.newObject("Sketcher::SketchObject", "Sketch013")
sketch14.AttachmentSupport = (doc.getObject("XY_Plane"), [""])
sketch14.MapMode = "FlatFace"
sketch14.AttachmentOffset = App.Placement(Vector(0, 0, -122.4421), App.Rotation())
sketch14.addGeometry(Part.LineSegment(Vector(-62.7746, 54, 0), Vector(-62.7746, 36.3, 0)), False)
sketch14.addGeometry(Part.LineSegment(Vector(-62.7746, 36.3, 0), Vector(-85.8246, 36.3, 0)), False)
sketch14.addGeometry(Part.LineSegment(Vector(-85.8246, 36.3, 0), Vector(-85.8246, 54, 0)), False)
sketch14.addGeometry(Part.LineSegment(Vector(-85.8246, 54, 0), Vector(-62.7746, 54, 0)), False)
sketch14.addGeometry(Part.LineSegment(Vector(-106.7246, -3.22, 0), Vector(-129.7746, -3.22, 0)), False)
sketch14.addGeometry(Part.LineSegment(Vector(-129.7746, -3.22, 0), Vector(-129.7746, 12.7, 0)), False)
sketch14.addGeometry(Part.LineSegment(Vector(-129.7746, 12.7, 0), Vector(-106.7246, 12.7, 0)), False)
sketch14.addGeometry(Part.LineSegment(Vector(-106.7246, 12.7, 0), Vector(-106.7246, -3.22, 0)), False)
sketch14.addGeometry(Part.LineSegment(Vector(-107.5046, 36.3, 0), Vector(-129.7746, 36.3, 0)), False)
sketch14.addGeometry(Part.LineSegment(Vector(-129.7746, 36.3, 0), Vector(-129.7746, 54, 0)), False)
sketch14.addGeometry(Part.LineSegment(Vector(-129.7746, 54, 0), Vector(-107.5046, 54, 0)), False)
sketch14.addGeometry(Part.LineSegment(Vector(-107.5046, 54, 0), Vector(-107.5046, 36.3, 0)), False)
sketch14.addGeometry(Part.LineSegment(Vector(-85.8246, 12.7, 0), Vector(-62.7746, 12.7, 0)), False)
sketch14.addGeometry(Part.LineSegment(Vector(-62.7746, 12.7, 0), Vector(-62.7746, -3.22, 0)), False)
sketch14.addGeometry(Part.LineSegment(Vector(-62.7746, -3.22, 0), Vector(-85.8246, -3.22, 0)), False)
sketch14.addGeometry(Part.LineSegment(Vector(-85.8246, -3.22, 0), Vector(-85.8246, 12.7, 0)), False)
sketch14.addConstraint(Sketcher.Constraint("Coincident", 0, 2, 1, 1))
sketch14.addConstraint(Sketcher.Constraint("Coincident", 1, 2, 2, 1))
sketch14.addConstraint(Sketcher.Constraint("Coincident", 2, 2, 3, 1))
sketch14.addConstraint(Sketcher.Constraint("Coincident", 3, 2, 0, 1))
sketch14.addConstraint(Sketcher.Constraint("Coincident", 4, 2, 5, 1))
sketch14.addConstraint(Sketcher.Constraint("Coincident", 5, 2, 6, 1))
sketch14.addConstraint(Sketcher.Constraint("Coincident", 6, 2, 7, 1))
sketch14.addConstraint(Sketcher.Constraint("Coincident", 7, 2, 4, 1))
sketch14.addConstraint(Sketcher.Constraint("Coincident", 8, 2, 9, 1))
sketch14.addConstraint(Sketcher.Constraint("Coincident", 9, 2, 10, 1))
sketch14.addConstraint(Sketcher.Constraint("Coincident", 10, 2, 11, 1))
sketch14.addConstraint(Sketcher.Constraint("Coincident", 11, 2, 8, 1))
sketch14.addConstraint(Sketcher.Constraint("Coincident", 12, 2, 13, 1))
sketch14.addConstraint(Sketcher.Constraint("Coincident", 13, 2, 14, 1))
sketch14.addConstraint(Sketcher.Constraint("Coincident", 14, 2, 15, 1))
sketch14.addConstraint(Sketcher.Constraint("Coincident", 15, 2, 12, 1))
sketch14.addConstraint(Sketcher.Constraint("Vertical", 0))
sketch14.addConstraint(Sketcher.Constraint("Horizontal", 1))
sketch14.addConstraint(Sketcher.Constraint("Vertical", 2))
sketch14.addConstraint(Sketcher.Constraint("Horizontal", 3))
sketch14.addConstraint(Sketcher.Constraint("Horizontal", 4))
sketch14.addConstraint(Sketcher.Constraint("Vertical", 5))
sketch14.addConstraint(Sketcher.Constraint("Horizontal", 6))
sketch14.addConstraint(Sketcher.Constraint("Vertical", 7))
sketch14.addConstraint(Sketcher.Constraint("Horizontal", 8))
sketch14.addConstraint(Sketcher.Constraint("Vertical", 9))
sketch14.addConstraint(Sketcher.Constraint("Horizontal", 10))
sketch14.addConstraint(Sketcher.Constraint("Vertical", 11))
sketch14.addConstraint(Sketcher.Constraint("Horizontal", 12))
sketch14.addConstraint(Sketcher.Constraint("Vertical", 13))
sketch14.addConstraint(Sketcher.Constraint("Horizontal", 14))
sketch14.addConstraint(Sketcher.Constraint("Vertical", 15))
sketch14.addConstraint(Sketcher.Constraint("Horizontal", 1, 2, 8, 2))
sketch14.addConstraint(Sketcher.Constraint("Horizontal", 3, 2, 9, 2))
sketch14.addConstraint(Sketcher.Constraint("Horizontal", 6, 2, 12, 2))
sketch14.addConstraint(Sketcher.Constraint("Horizontal", 7, 2, 13, 2))
sketch14.addConstraint(Sketcher.Constraint("Vertical", 5, 2, 8, 2))
sketch14.addConstraint(Sketcher.Constraint("Vertical", 3, 2, 12, 2))
sketch14.addConstraint(Sketcher.Constraint("Vertical", 2, 2, 14, 2))
sketch14.addConstraint(Sketcher.Constraint("Equal", 3, 4))
sketch14.addConstraint(Sketcher.Constraint("DistanceY", 0, 2, 0, 1, Q("17.7 mm")))
sketch14.addConstraint(Sketcher.Constraint("DistanceY", -1, 1, 2, 2, Q("54 mm")))
sketch14.addConstraint(Sketcher.Constraint("DistanceX", 4, 2, 0, 2, Q("67 mm")))
sketch14.addConstraint(Sketcher.Constraint("DistanceX", 1, 2, 1, 1, Q("23.05 mm")))
sketch14.addConstraint(Sketcher.Constraint("DistanceX", 8, 2, 8, 1, Q("22.27 mm")))
sketch14.addConstraint(Sketcher.Constraint("DistanceY", 5, 1, 5, 2, Q("15.92 mm")))
sketch14.addConstraint(Sketcher.Constraint("DistanceY", -1, 1, 5, 2, Q("12.7 mm")))
sketch14.addConstraint(Sketcher.Constraint("DistanceX", 0, 2, -1, 1, Q("62.7746 mm")))
pocket6 = body.newObject("PartDesign::Pocket", "Pocket005")
pocket6.Profile = sketch14
pocket6.Length = 6.395
pocket6.Reversed = True

doc.recompute()
